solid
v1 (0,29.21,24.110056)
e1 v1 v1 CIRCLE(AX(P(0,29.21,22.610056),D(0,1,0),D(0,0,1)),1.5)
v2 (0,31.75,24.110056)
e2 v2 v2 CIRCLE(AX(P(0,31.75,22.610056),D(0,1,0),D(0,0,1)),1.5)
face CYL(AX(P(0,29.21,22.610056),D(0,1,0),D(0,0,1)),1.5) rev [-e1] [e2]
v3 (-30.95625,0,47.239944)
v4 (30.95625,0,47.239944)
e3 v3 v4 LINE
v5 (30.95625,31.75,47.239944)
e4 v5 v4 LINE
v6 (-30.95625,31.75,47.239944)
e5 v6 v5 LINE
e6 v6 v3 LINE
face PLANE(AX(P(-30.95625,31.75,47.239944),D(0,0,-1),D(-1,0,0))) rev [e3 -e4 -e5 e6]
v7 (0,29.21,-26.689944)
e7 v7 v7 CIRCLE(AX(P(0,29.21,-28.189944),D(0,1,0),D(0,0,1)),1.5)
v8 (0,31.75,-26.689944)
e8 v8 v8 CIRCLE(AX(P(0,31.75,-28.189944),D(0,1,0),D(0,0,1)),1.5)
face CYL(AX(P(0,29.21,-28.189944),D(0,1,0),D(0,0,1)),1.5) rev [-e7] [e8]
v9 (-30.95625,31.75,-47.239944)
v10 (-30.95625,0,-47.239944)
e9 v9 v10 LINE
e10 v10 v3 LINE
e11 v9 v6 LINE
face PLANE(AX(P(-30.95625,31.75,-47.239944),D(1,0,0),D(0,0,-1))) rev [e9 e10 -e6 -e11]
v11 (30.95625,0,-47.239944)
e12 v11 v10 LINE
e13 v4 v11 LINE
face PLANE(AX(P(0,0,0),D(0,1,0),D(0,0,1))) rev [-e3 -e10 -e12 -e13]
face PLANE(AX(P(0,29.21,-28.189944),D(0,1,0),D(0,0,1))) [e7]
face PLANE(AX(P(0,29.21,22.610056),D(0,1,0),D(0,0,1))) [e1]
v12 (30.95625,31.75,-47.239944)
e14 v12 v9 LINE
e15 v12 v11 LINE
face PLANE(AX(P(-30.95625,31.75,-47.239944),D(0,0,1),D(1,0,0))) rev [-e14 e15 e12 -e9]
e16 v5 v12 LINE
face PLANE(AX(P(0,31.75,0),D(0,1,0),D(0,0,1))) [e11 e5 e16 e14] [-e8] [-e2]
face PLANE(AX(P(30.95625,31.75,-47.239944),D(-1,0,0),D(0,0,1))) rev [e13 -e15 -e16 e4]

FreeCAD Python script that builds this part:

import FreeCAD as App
import Part
import Sketcher
Q = App.Units.Quantity

doc = App.newDocument("Part")
params = doc.addObject("Spreadsheet::Sheet", "Params")
for row, (alias, value) in enumerate([
    ("sketch1_width", "2.4375 in"),
    ("pad1_length", "1.25 in"),
    ("pocket1_length", "0.1 in"),
], start=1):
    params.set(f"A{row}", alias)
    params.set(f"B{row}", "=" + value)
    params.setAlias(f"B{row}", alias)

body = doc.addObject("PartDesign::Body", "Body")

# Sketch on XZ plane
sketch1 = doc.addObject("Sketcher::SketchObject", "Sketch")
body.addObject(sketch1)
sketch1.AttachmentSupport = (doc.XZ_Plane, [""])
sketch1.MapMode = "FlatFace"
sketch1.addGeometry(Part.LineSegment(App.Vector(-31, -47, 0), App.Vector(-31, 47, 0)), False)
sketch1.addGeometry(Part.LineSegment(App.Vector(-31, 47, 0), App.Vector(31, 47, 0)), False)
sketch1.addGeometry(Part.LineSegment(App.Vector(31, 47, 0), App.Vector(31, -47, 0)), False)
sketch1.addGeometry(Part.LineSegment(App.Vector(31, -47, 0), App.Vector(-31, -47, 0)), False)
sketch1.addConstraint(Sketcher.Constraint("Coincident", 0, 2, 1, 1))
sketch1.addConstraint(Sketcher.Constraint("Coincident", 1, 2, 2, 1))
sketch1.addConstraint(Sketcher.Constraint("Coincident", 2, 2, 3, 1))
sketch1.addConstraint(Sketcher.Constraint("Coincident", 3, 2, 0, 1))
sketch1.addConstraint(Sketcher.Constraint("Vertical", 0))
sketch1.addConstraint(Sketcher.Constraint("Horizontal", 1))
sketch1.addConstraint(Sketcher.Constraint("Vertical", 2))
sketch1.addConstraint(Sketcher.Constraint("Horizontal", 3))
sketch1.addConstraint(Sketcher.Constraint("Symmetric", 0, 2, 2, 2, -1, 1))
sketch1.addConstraint(Sketcher.Constraint("DistanceX", 1, 1, 1, 2, Q("2.4375 in")))
sketch1.addConstraint(Sketcher.Constraint("DistanceY", 0, 1, 0, 2, Q("94.479889 mm")))
sketch1.setExpression("Constraints[9]", "Params.sketch1_width")
pad1 = doc.addObject("PartDesign::Pad", "Pad")
body.addObject(pad1)
pad1.Profile = sketch1
pad1.setExpression("Length", "Params.pad1_length")
pad1.Reversed = True

# Sketch on XZ plane
sketch2 = doc.addObject("Sketcher::SketchObject", "Sketch001")
body.addObject(sketch2)
sketch2.AttachmentSupport = (doc.XZ_Plane, [""])
sketch2.MapMode = "FlatFace"
sketch2.AttachmentOffset = App.Placement(App.Vector(0, 0, -1.25 * 25.4), App.Rotation())
sketch2.addGeometry(Part.Circle(App.Vector(0, -28.2, 0), App.Vector(0, 0, 1), 1.5), False)
sketch2.addGeometry(Part.Circle(App.Vector(0, 22.6, 0), App.Vector(0, 0, 1), 1.5), False)
sketch2.addConstraint(Sketcher.Constraint("Equal", 0, 1))
sketch2.addConstraint(Sketcher.Constraint("PointOnObject", 0, 3, -2))
sketch2.addConstraint(Sketcher.Constraint("PointOnObject", 1, 3, -2))
sketch2.addConstraint(Sketcher.Constraint("DistanceY", 0, 3, 1, 3, Q("2 in")))
sketch2.addConstraint(Sketcher.Constraint("Diameter", 0, Q("3 mm")))
sketch2.addConstraint(Sketcher.Constraint("DistanceY", 0, 3, -1, 1, Q("28.189944 mm")))
pocket1 = doc.addObject("PartDesign::Pocket", "Pocket")
body.addObject(pocket1)
pocket1.Profile = sketch2
pocket1.setExpression("Length", "Params.pocket1_length")
pocket1.Reversed = True

doc.recompute()
